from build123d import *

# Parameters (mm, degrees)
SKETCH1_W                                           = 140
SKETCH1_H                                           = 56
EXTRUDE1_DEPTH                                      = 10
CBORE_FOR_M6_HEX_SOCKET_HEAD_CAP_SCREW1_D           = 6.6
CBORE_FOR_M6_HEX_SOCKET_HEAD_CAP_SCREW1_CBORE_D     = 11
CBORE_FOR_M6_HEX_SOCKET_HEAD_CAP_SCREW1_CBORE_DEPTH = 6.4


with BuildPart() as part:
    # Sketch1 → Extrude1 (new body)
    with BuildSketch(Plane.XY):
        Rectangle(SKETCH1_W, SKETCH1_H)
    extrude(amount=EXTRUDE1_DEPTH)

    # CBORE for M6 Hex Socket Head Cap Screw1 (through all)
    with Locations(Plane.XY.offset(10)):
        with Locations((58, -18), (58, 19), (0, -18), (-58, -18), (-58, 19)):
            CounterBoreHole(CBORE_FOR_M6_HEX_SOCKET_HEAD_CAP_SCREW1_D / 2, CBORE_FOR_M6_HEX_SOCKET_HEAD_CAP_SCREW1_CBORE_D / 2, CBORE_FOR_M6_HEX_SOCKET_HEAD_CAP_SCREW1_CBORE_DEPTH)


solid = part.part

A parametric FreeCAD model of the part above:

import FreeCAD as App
import Part
import Sketcher
Q = App.Units.Quantity

doc = App.newDocument("Part")
params = doc.addObject("Spreadsheet::Sheet", "Params")
for row, (alias, value) in enumerate([
    ("sketch1_width", "140 mm"),
    ("sketch1_height", "56 mm"),
    ("pad1_length", "10 mm"),
    ("sketch2_diameter", "6.6 mm"),
    ("hole_diameter", "6.6 mm"),
    ("hole_cbore_diameter", "11 mm"),
    ("hole_cbore_depth", "6.4 mm"),
], start=1):
    params.set(f"A{row}", alias)
    params.set(f"B{row}", "=" + value)
    params.setAlias(f"B{row}", alias)

body = doc.addObject("PartDesign::Body", "Body")

sketch1 = body.newObject("Sketcher::SketchObject", "Sketch")
sketch1.AttachmentSupport = (doc.getObject("XY_Plane"), [""])
sketch1.MapMode = "FlatFace"
sketch1.addGeometry([
    Part.LineSegment(App.Vector(-70, 28, 0), App.Vector(-70, -28, 0)),
    Part.LineSegment(App.Vector(-70, -28, 0), App.Vector(70, -28, 0)),
    Part.LineSegment(App.Vector(70, -28, 0), App.Vector(70, 28, 0)),
    Part.LineSegment(App.Vector(70, 28, 0), App.Vector(-70, 28, 0)),
], False)
sketch1.addConstraint([
    Sketcher.Constraint("Coincident", 0, 2, 1, 1),
    Sketcher.Constraint("Coincident", 1, 2, 2, 1),
    Sketcher.Constraint("Coincident", 2, 2, 3, 1),
    Sketcher.Constraint("Coincident", 3, 2, 0, 1),
    Sketcher.Constraint("Vertical", 0),
    Sketcher.Constraint("Horizontal", 1),
    Sketcher.Constraint("Vertical", 2),
    Sketcher.Constraint("Horizontal", 3),
    Sketcher.Constraint("Symmetric", 0, 2, 2, 2, -1, 1),
    Sketcher.Constraint("DistanceX", 1, 1, 1, 2, Q("140 mm")),
    Sketcher.Constraint("DistanceY", 0, 2, 0, 1, Q("56 mm")),
])
sketch1.setExpression("Constraints[9]", "Params.sketch1_width")
sketch1.setExpression("Constraints[10]", "Params.sketch1_height")
pad1 = body.newObject("PartDesign::Pad", "Pad")
pad1.Profile = sketch1
pad1.setExpression("Length", "Params.pad1_length")

sketch2 = body.newObject("Sketcher::SketchObject", "Sketch001")
sketch2.AttachmentSupport = (doc.getObject("XY_Plane"), [""])
sketch2.MapMode = "FlatFace"
sketch2.AttachmentOffset = App.Placement(App.Vector(0, 0, 10), App.Rotation())
sketch2.addGeometry([
    Part.Circle(App.Vector(58, -18, 0), App.Vector(0, 0, 1), 3.3),
    Part.Circle(App.Vector(58, 19, 0), App.Vector(0, 0, 1), 3.3),
    Part.Circle(App.Vector(0, -18, 0), App.Vector(0, 0, 1), 3.3),
    Part.Circle(App.Vector(-58, -18, 0), App.Vector(0, 0, 1), 3.3),
    Part.Circle(App.Vector(-58, 19, 0), App.Vector(0, 0, 1), 3.3),
], False)
sketch2.addConstraint([
    Sketcher.Constraint("Equal", 0, 1),
    Sketcher.Constraint("Equal", 1, 2),
    Sketcher.Constraint("Equal", 2, 3),
    Sketcher.Constraint("Equal", 3, 4),
    Sketcher.Constraint("Symmetric", 0, 3, 3, 3, -2),
    Sketcher.Constraint("Symmetric", 1, 3, 4, 3, -2),
    Sketcher.Constraint("PointOnObject", 2, 3, -2),
    Sketcher.Constraint("Horizontal", 0, 3, 2, 3),
    Sketcher.Constraint("Vertical", 0, 3, 1, 3),
    Sketcher.Constraint("Diameter", 0, Q("6.6 mm")),
    Sketcher.Constraint("DistanceX", -1, 1, 0, 3, Q("58 mm")),
    Sketcher.Constraint("DistanceY", 0, 3, -1, 1, Q("18 mm")),
    Sketcher.Constraint("DistanceY", -1, 1, 1, 3, Q("19 mm")),
])
sketch2.setExpression("Constraints[9]", "Params.sketch2_diameter")
doc.recompute()
hole = body.newObject("PartDesign::Hole", "Hole")
hole.Profile = sketch2
hole.ThreadType = "None"
hole.setExpression("Diameter", "Params.hole_diameter")
hole.DepthType = "ThroughAll"
hole.HoleCutType = "Counterbore"
hole.setExpression("HoleCutDiameter", "Params.hole_cbore_diameter")
hole.setExpression("HoleCutDepth", "Params.hole_cbore_depth")

doc.recompute()
